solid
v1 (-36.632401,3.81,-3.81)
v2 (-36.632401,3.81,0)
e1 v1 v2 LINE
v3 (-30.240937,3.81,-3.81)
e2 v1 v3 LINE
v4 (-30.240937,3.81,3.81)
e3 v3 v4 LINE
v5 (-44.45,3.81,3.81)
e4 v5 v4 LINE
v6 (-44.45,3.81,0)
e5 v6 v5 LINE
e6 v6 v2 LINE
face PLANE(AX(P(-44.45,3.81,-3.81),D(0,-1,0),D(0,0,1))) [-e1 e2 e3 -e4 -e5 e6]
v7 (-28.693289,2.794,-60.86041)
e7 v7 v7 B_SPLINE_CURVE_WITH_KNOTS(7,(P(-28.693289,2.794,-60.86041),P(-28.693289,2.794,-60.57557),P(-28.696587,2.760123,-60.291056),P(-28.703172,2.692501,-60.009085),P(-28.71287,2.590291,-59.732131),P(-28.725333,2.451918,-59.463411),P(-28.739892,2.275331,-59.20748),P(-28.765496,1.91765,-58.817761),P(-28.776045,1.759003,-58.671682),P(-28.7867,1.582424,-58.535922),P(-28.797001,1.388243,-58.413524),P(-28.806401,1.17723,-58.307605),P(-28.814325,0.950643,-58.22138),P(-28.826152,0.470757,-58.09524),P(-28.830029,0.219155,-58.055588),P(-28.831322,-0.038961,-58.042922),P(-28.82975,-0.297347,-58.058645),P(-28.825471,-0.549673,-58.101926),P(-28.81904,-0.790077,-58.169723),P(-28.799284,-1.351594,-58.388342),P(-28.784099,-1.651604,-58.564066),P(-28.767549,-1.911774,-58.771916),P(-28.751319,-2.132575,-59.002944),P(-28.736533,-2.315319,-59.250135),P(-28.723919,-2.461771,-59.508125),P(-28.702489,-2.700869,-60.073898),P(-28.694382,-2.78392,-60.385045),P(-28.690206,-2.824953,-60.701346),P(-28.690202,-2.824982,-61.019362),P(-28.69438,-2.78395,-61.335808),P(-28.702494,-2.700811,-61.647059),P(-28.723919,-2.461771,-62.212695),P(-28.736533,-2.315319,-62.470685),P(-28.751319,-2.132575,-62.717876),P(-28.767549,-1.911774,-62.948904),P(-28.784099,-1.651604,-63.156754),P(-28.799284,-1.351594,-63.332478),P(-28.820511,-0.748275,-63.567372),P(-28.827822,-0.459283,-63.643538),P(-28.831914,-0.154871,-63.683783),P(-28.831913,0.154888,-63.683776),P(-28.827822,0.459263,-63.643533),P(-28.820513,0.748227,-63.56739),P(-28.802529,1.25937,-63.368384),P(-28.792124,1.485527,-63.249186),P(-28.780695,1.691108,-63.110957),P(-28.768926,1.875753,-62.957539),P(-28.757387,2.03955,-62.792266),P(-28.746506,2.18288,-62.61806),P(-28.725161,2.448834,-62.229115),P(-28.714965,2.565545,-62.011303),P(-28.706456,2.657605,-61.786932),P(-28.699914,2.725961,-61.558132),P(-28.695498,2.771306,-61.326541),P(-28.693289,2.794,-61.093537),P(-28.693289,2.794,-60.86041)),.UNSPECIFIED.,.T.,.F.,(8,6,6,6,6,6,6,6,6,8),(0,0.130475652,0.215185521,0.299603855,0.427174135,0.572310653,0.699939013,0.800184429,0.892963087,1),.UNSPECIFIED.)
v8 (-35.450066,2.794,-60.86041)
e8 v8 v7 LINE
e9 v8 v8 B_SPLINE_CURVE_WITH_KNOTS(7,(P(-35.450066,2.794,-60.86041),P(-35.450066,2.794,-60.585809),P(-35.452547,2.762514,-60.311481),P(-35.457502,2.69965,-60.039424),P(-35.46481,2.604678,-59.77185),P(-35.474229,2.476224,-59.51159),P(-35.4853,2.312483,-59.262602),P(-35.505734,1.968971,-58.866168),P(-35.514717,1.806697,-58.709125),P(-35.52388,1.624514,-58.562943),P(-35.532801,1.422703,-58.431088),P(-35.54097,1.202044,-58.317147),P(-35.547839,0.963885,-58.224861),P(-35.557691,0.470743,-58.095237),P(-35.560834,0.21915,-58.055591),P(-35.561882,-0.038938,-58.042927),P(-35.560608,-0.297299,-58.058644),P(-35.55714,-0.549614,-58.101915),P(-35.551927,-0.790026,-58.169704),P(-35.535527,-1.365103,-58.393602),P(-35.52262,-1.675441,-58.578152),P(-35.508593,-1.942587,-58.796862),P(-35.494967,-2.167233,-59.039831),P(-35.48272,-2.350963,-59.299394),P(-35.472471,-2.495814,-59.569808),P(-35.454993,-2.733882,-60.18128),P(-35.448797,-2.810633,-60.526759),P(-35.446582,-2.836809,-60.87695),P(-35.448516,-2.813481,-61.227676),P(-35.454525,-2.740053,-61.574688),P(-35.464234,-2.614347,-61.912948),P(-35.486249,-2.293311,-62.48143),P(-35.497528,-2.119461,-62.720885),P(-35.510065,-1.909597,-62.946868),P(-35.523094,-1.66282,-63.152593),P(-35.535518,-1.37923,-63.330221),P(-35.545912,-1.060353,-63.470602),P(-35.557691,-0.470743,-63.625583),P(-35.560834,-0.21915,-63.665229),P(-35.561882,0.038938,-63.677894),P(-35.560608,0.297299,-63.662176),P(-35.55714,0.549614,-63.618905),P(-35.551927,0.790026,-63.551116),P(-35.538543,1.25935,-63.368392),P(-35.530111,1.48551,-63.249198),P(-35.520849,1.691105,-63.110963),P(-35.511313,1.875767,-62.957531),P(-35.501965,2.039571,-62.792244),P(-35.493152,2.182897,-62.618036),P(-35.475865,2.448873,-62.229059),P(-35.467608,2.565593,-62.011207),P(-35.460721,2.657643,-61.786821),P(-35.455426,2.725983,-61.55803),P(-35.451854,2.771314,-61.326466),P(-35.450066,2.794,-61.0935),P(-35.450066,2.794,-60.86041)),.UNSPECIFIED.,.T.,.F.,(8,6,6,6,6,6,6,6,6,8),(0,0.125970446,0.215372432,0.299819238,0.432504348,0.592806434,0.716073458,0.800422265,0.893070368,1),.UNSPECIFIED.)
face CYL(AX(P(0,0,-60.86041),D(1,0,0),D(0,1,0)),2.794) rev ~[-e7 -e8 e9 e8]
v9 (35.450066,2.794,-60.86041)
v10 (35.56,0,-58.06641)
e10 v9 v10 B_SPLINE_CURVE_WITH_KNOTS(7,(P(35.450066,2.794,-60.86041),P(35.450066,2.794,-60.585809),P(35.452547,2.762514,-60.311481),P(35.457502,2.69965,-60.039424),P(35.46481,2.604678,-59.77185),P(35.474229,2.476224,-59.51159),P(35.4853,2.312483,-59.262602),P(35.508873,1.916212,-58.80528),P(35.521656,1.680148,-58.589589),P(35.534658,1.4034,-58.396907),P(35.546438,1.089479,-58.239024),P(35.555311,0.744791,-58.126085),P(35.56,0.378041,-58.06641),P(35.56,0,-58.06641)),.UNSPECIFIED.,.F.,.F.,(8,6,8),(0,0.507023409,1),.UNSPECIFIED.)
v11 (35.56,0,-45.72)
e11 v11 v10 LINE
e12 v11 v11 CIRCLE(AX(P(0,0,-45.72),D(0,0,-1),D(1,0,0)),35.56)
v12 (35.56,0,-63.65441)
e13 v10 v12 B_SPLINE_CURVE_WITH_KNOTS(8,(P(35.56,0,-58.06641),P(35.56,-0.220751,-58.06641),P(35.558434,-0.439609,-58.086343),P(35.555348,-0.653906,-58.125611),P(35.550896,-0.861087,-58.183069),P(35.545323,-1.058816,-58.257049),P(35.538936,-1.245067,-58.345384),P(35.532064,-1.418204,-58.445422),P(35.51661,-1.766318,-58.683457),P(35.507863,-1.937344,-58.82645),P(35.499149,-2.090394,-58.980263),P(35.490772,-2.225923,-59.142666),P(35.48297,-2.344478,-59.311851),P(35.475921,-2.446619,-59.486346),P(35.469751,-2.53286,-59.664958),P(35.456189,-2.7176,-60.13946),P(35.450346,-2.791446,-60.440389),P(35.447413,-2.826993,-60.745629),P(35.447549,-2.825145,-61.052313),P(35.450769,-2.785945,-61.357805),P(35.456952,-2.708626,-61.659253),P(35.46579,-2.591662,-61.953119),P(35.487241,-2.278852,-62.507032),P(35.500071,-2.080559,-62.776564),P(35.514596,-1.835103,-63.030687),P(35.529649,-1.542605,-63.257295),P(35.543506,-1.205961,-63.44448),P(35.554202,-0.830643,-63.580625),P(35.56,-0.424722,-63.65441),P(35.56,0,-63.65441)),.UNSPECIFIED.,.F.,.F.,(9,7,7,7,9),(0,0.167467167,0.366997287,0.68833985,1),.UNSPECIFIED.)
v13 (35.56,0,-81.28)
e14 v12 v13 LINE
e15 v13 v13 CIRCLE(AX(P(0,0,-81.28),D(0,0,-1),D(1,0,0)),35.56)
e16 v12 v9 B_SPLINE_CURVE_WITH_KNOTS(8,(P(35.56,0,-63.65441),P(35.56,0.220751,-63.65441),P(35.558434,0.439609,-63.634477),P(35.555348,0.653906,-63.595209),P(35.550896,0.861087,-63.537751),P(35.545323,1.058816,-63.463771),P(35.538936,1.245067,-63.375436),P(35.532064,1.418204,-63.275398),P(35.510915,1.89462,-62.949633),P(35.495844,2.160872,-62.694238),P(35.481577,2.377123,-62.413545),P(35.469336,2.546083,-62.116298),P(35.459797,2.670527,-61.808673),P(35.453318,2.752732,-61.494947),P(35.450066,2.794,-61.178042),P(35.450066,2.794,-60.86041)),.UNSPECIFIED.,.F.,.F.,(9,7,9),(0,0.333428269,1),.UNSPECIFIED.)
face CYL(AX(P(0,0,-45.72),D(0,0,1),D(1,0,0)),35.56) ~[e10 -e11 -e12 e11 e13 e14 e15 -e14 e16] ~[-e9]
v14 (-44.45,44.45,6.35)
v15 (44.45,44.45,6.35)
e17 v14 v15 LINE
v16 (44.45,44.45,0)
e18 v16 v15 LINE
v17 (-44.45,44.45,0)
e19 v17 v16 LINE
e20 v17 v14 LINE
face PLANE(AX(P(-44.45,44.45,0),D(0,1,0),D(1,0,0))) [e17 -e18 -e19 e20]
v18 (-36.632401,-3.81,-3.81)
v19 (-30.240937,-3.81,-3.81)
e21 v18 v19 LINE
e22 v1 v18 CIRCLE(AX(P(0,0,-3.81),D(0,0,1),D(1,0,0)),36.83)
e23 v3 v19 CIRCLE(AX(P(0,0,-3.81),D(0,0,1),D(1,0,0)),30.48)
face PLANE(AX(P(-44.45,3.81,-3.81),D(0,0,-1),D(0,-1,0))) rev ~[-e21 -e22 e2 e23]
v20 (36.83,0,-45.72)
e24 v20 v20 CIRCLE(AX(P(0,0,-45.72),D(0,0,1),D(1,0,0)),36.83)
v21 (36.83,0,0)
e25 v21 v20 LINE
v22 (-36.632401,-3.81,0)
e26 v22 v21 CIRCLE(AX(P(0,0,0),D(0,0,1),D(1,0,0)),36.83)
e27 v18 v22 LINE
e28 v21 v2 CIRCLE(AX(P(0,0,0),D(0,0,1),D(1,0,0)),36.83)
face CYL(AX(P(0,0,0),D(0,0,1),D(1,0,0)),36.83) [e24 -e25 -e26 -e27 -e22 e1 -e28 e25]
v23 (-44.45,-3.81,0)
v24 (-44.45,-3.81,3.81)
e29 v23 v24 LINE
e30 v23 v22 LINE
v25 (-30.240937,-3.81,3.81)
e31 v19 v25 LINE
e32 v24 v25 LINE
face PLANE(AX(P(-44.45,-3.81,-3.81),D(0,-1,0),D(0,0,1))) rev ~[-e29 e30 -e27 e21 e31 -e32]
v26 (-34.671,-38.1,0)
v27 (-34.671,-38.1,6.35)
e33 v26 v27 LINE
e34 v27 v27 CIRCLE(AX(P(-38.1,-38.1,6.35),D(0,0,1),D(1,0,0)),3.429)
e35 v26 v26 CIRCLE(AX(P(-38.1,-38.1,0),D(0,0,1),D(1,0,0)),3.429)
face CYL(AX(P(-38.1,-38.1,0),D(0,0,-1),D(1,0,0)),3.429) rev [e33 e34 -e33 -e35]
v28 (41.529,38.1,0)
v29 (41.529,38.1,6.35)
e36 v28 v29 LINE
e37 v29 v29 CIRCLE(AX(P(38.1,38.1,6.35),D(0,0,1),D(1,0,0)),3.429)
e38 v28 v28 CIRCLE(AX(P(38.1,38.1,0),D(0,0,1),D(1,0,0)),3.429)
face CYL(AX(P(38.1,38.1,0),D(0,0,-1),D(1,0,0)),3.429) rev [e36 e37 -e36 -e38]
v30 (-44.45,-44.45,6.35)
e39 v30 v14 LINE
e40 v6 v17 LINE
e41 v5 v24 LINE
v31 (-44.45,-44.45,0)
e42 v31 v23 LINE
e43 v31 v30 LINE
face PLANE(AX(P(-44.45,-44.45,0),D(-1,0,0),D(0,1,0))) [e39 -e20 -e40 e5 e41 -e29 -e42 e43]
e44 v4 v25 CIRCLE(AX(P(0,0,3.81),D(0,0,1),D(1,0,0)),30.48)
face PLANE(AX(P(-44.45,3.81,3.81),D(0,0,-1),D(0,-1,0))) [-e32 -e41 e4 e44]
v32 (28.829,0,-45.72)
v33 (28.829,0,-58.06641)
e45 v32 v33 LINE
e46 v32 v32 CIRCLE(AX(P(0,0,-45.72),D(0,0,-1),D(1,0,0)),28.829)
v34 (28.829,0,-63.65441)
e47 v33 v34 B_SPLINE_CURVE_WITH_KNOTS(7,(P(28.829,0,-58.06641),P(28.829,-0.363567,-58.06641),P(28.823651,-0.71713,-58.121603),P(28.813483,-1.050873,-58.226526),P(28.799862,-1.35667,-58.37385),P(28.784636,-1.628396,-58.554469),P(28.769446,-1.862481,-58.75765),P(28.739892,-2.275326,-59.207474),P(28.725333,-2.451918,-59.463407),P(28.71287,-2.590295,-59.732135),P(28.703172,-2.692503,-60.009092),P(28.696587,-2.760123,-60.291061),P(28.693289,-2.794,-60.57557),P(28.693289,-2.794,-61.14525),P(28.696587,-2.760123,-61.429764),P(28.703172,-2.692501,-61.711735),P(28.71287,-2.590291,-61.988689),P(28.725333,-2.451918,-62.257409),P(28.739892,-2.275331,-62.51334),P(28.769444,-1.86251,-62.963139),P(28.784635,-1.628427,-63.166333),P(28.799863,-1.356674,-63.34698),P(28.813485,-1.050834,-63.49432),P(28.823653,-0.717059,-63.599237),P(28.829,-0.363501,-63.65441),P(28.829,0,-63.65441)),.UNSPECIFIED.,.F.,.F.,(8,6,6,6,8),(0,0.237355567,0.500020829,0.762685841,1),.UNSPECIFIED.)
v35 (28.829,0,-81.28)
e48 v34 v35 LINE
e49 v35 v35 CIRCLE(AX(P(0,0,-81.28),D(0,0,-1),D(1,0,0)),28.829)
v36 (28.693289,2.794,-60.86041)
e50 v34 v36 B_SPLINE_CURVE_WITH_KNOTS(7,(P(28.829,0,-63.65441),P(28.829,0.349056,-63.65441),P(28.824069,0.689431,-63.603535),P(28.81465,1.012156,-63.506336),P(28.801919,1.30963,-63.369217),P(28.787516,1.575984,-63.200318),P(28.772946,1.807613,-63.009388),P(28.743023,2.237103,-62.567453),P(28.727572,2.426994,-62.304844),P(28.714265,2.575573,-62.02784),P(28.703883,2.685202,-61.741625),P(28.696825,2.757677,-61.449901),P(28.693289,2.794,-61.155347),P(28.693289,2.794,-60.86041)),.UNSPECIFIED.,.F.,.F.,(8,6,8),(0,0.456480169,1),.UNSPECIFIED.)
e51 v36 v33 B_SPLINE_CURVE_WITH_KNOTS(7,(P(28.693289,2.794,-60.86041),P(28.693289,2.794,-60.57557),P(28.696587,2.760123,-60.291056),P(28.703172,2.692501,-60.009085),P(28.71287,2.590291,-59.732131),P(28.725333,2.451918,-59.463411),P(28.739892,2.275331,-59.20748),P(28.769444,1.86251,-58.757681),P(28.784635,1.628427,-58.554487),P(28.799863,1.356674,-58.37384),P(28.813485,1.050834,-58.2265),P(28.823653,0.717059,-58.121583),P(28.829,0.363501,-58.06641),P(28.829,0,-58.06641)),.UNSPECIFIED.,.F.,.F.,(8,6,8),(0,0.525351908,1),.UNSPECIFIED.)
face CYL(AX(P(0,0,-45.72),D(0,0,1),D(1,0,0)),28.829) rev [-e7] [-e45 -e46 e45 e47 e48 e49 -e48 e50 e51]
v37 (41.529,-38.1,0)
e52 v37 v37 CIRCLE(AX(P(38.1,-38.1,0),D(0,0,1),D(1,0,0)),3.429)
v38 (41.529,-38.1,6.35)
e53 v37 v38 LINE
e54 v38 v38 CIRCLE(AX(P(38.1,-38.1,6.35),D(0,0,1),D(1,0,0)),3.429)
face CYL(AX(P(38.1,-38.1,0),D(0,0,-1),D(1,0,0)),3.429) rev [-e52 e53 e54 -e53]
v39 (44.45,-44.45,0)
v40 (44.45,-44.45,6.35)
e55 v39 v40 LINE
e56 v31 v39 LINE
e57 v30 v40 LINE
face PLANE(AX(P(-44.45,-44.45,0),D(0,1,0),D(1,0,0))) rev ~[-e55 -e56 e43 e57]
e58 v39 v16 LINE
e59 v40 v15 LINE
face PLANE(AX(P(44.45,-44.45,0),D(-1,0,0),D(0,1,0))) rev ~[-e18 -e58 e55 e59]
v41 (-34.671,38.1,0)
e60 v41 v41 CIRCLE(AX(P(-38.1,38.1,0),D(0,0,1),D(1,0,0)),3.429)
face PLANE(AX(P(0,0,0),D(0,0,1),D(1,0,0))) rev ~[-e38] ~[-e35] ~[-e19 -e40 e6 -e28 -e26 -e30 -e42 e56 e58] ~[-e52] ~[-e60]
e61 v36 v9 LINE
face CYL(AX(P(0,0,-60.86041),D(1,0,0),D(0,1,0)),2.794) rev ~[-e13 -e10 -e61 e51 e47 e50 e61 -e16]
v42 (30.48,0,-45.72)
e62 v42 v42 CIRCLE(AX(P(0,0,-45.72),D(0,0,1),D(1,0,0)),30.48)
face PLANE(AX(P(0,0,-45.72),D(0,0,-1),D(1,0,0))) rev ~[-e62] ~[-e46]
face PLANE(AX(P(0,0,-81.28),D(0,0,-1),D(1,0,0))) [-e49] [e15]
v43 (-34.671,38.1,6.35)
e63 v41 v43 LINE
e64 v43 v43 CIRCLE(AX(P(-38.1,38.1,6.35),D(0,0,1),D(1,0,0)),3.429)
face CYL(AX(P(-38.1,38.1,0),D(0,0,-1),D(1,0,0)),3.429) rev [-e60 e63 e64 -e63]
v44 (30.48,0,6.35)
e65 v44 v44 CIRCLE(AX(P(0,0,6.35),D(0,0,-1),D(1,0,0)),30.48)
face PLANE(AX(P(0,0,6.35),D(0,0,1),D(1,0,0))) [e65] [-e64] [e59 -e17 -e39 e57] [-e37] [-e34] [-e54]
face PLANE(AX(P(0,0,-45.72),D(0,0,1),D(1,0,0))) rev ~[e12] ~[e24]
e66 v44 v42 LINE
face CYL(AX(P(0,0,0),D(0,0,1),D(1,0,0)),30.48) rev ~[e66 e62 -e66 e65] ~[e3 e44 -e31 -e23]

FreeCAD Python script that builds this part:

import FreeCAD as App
import Part
import Sketcher
Q = App.Units.Quantity


def add_polygon(sketch, points):
    """Adds a closed chain of lines whose ends are joined by coincident constraints."""
    first, n = sketch.GeometryCount, len(points)
    for a, b in zip(points, points[1:] + points[:1]):
        sketch.addGeometry(Part.LineSegment(App.Vector(*a, 0), App.Vector(*b, 0)), False)
    for i in range(n):
        sketch.addConstraint(Sketcher.Constraint("Coincident", first + i, 2, first + (i + 1) % n, 1))

doc = App.newDocument("Part")
body = doc.addObject("PartDesign::Body", "Body")

sketch1 = doc.addObject("Sketcher::SketchObject", "Sketch")
body.addObject(sketch1)
sketch1.AttachmentSupport = (doc.XY_Plane, [""])
sketch1.MapMode = "FlatFace"
add_polygon(sketch1, [(-44.5, 44.5), (-44.5, -44.5), (44.5, -44.5), (44.5, 44.5)])
sketch1.addGeometry(Part.Circle(App.Vector(-38.1, -38.1, 0), App.Vector(0, 0, 1), 3.4), False)
sketch1.addGeometry(Part.Circle(App.Vector(38.1, -38.1, 0), App.Vector(0, 0, 1), 3.4), False)
sketch1.addGeometry(Part.Circle(App.Vector(-38.1, 38.1, 0), App.Vector(0, 0, 1), 3.4), False)
sketch1.addGeometry(Part.Circle(App.Vector(38.1, 38.1, 0), App.Vector(0, 0, 1), 3.4), False)
sketch1.addConstraint(Sketcher.Constraint("Vertical", 0))
sketch1.addConstraint(Sketcher.Constraint("Horizontal", 1))
sketch1.addConstraint(Sketcher.Constraint("Vertical", 2))
sketch1.addConstraint(Sketcher.Constraint("Horizontal", 3))
sketch1.addConstraint(Sketcher.Constraint("Equal", 4, 5))
sketch1.addConstraint(Sketcher.Constraint("Equal", 5, 6))
sketch1.addConstraint(Sketcher.Constraint("Equal", 6, 7))
sketch1.addConstraint(Sketcher.Constraint("Symmetric", 5, 3, 6, 3, -1, 1))
sketch1.addConstraint(Sketcher.Constraint("Symmetric", 4, 3, 7, 3, -1, 1))
sketch1.addConstraint(Sketcher.Constraint("Symmetric", 0, 2, 2, 2, -1, 1))
sketch1.addConstraint(Sketcher.Constraint("Symmetric", 4, 3, 5, 3, -2))
sketch1.addConstraint(Sketcher.Constraint("Equal", 3, 0))
sketch1.addConstraint(Sketcher.Constraint("Diameter", 4, Q("0.27 in")))
sketch1.addConstraint(Sketcher.Constraint("DistanceX", 1, 1, 1, 2, Q("3.5 in")))
sketch1.addConstraint(Sketcher.Constraint("DistanceX", 4, 3, 5, 3, Q("3 in")))
sketch1.addConstraint(Sketcher.Constraint("DistanceY", 4, 3, 6, 3, Q("3 in")))
pad1 = doc.addObject("PartDesign::Pad", "Pad")
body.addObject(pad1)
pad1.Profile = sketch1
pad1.Length = Q("0.25 in")

sketch2 = doc.addObject("Sketcher::SketchObject", "Sketch001")
body.addObject(sketch2)
sketch2.AttachmentSupport = (doc.XY_Plane, [""])
sketch2.MapMode = "FlatFace"
sketch2.addGeometry(Part.Circle(App.Vector(0, 0, 0), App.Vector(0, 0, 1), 30), False)
sketch2.addConstraint(Sketcher.Constraint("Coincident", 0, 3, -1, 1))
sketch2.addConstraint(Sketcher.Constraint("Diameter", 0, Q("2.4 in")))
pocket1 = doc.addObject("PartDesign::Pocket", "Pocket")
body.addObject(pocket1)
pocket1.Profile = sketch2
pocket1.Type = "ThroughAll"
pocket1.Reversed = True

sketch3 = doc.addObject("Sketcher::SketchObject", "Sketch002")
body.addObject(sketch3)
sketch3.AttachmentSupport = (doc.XY_Plane, [""])
sketch3.MapMode = "FlatFace"
sketch3.addGeometry(Part.Circle(App.Vector(0, 0, 0), App.Vector(0, 0, 1), 37), False)
sketch3.addGeometry(Part.Circle(App.Vector(0, 0, 0), App.Vector(0, 0, 1), 30), False)
sketch3.addConstraint(Sketcher.Constraint("Coincident", 0, 3, -1, 1))
sketch3.addConstraint(Sketcher.Constraint("Coincident", 1, 3, -1, 1))
sketch3.addConstraint(Sketcher.Constraint("Diameter", 0, Q("2.9 in")))
sketch3.addConstraint(Sketcher.Constraint("Diameter", 1, Q("2.4 in")))
pad2 = doc.addObject("PartDesign::Pad", "Pad001")
body.addObject(pad2)
pad2.Profile = sketch3
pad2.Length = Q("1.8 in")
pad2.Reversed = True

sketch4 = doc.addObject("Sketcher::SketchObject", "Sketch003")
body.addObject(sketch4)
sketch4.AttachmentSupport = (doc.XY_Plane, [""])
sketch4.MapMode = "FlatFace"
sketch4.AttachmentOffset = App.Placement(App.Vector(0, 0, -1.8 * 25.4), App.Rotation())
sketch4.addGeometry(Part.Circle(App.Vector(0, 0, 0), App.Vector(0, 0, 1), 36), False)
sketch4.addGeometry(Part.Circle(App.Vector(0, 0, 0), App.Vector(0, 0, 1), 29), False)
sketch4.addConstraint(Sketcher.Constraint("Coincident", 0, 3, -1, 1))
sketch4.addConstraint(Sketcher.Constraint("Coincident", 1, 3, -1, 1))
sketch4.addConstraint(Sketcher.Constraint("Diameter", 0, Q("2.8 in")))
sketch4.addConstraint(Sketcher.Constraint("Diameter", 1, Q("2.27 in")))
pad3 = doc.addObject("PartDesign::Pad", "Pad002")
body.addObject(pad3)
pad3.Profile = sketch4
pad3.Length = Q("1.4 in")
pad3.Reversed = True

sketch5 = doc.addObject("Sketcher::SketchObject", "Sketch004")
body.addObject(sketch5)
sketch5.AttachmentSupport = (doc.YZ_Plane, [""])
sketch5.MapMode = "FlatFace"
sketch5.AttachmentOffset = App.Placement(App.Vector(0, 0, -1.75 * 25.4), App.Rotation())
add_polygon(sketch5, [(4, 4), (4, -4), (-4, -4), (-4, 4)])
sketch5.addConstraint(Sketcher.Constraint("Vertical", 0))
sketch5.addConstraint(Sketcher.Constraint("Horizontal", 1))
sketch5.addConstraint(Sketcher.Constraint("Vertical", 2))
sketch5.addConstraint(Sketcher.Constraint("Horizontal", 3))
sketch5.addConstraint(Sketcher.Constraint("Symmetric", 0, 2, 2, 2, -1, 1))
sketch5.addConstraint(Sketcher.Constraint("Equal", 3, 0))
sketch5.addConstraint(Sketcher.Constraint("DistanceX", 1, 2, 1, 1, Q("0.3 in")))
pocket2 = doc.addObject("PartDesign::Pocket", "Pocket001")
body.addObject(pocket2)
pocket2.Profile = sketch5
pocket2.Length = 25.49487
pocket2.Reversed = True

sketch6 = doc.addObject("Sketcher::SketchObject", "Sketch005")
body.addObject(sketch6)
sketch6.AttachmentSupport = (doc.YZ_Plane, [""])
sketch6.MapMode = "FlatFace"
sketch6.addGeometry(Part.Circle(App.Vector(0, -60.9, 0), App.Vector(0, 0, 1), 2.8), False)
sketch6.addConstraint(Sketcher.Constraint("PointOnObject", 0, 3, -2))
sketch6.addConstraint(Sketcher.Constraint("Diameter", 0, Q("0.22 in")))
sketch6.addConstraint(Sketcher.Constraint("DistanceY", 0, 3, -1, 1, 60.86041))
pocket3 = doc.addObject("PartDesign::Pocket", "Pocket002")
body.addObject(pocket3)
pocket3.Profile = sketch6
pocket3.Length = Q("3.5 in")
pocket3.Midplane = True

doc.recompute()
